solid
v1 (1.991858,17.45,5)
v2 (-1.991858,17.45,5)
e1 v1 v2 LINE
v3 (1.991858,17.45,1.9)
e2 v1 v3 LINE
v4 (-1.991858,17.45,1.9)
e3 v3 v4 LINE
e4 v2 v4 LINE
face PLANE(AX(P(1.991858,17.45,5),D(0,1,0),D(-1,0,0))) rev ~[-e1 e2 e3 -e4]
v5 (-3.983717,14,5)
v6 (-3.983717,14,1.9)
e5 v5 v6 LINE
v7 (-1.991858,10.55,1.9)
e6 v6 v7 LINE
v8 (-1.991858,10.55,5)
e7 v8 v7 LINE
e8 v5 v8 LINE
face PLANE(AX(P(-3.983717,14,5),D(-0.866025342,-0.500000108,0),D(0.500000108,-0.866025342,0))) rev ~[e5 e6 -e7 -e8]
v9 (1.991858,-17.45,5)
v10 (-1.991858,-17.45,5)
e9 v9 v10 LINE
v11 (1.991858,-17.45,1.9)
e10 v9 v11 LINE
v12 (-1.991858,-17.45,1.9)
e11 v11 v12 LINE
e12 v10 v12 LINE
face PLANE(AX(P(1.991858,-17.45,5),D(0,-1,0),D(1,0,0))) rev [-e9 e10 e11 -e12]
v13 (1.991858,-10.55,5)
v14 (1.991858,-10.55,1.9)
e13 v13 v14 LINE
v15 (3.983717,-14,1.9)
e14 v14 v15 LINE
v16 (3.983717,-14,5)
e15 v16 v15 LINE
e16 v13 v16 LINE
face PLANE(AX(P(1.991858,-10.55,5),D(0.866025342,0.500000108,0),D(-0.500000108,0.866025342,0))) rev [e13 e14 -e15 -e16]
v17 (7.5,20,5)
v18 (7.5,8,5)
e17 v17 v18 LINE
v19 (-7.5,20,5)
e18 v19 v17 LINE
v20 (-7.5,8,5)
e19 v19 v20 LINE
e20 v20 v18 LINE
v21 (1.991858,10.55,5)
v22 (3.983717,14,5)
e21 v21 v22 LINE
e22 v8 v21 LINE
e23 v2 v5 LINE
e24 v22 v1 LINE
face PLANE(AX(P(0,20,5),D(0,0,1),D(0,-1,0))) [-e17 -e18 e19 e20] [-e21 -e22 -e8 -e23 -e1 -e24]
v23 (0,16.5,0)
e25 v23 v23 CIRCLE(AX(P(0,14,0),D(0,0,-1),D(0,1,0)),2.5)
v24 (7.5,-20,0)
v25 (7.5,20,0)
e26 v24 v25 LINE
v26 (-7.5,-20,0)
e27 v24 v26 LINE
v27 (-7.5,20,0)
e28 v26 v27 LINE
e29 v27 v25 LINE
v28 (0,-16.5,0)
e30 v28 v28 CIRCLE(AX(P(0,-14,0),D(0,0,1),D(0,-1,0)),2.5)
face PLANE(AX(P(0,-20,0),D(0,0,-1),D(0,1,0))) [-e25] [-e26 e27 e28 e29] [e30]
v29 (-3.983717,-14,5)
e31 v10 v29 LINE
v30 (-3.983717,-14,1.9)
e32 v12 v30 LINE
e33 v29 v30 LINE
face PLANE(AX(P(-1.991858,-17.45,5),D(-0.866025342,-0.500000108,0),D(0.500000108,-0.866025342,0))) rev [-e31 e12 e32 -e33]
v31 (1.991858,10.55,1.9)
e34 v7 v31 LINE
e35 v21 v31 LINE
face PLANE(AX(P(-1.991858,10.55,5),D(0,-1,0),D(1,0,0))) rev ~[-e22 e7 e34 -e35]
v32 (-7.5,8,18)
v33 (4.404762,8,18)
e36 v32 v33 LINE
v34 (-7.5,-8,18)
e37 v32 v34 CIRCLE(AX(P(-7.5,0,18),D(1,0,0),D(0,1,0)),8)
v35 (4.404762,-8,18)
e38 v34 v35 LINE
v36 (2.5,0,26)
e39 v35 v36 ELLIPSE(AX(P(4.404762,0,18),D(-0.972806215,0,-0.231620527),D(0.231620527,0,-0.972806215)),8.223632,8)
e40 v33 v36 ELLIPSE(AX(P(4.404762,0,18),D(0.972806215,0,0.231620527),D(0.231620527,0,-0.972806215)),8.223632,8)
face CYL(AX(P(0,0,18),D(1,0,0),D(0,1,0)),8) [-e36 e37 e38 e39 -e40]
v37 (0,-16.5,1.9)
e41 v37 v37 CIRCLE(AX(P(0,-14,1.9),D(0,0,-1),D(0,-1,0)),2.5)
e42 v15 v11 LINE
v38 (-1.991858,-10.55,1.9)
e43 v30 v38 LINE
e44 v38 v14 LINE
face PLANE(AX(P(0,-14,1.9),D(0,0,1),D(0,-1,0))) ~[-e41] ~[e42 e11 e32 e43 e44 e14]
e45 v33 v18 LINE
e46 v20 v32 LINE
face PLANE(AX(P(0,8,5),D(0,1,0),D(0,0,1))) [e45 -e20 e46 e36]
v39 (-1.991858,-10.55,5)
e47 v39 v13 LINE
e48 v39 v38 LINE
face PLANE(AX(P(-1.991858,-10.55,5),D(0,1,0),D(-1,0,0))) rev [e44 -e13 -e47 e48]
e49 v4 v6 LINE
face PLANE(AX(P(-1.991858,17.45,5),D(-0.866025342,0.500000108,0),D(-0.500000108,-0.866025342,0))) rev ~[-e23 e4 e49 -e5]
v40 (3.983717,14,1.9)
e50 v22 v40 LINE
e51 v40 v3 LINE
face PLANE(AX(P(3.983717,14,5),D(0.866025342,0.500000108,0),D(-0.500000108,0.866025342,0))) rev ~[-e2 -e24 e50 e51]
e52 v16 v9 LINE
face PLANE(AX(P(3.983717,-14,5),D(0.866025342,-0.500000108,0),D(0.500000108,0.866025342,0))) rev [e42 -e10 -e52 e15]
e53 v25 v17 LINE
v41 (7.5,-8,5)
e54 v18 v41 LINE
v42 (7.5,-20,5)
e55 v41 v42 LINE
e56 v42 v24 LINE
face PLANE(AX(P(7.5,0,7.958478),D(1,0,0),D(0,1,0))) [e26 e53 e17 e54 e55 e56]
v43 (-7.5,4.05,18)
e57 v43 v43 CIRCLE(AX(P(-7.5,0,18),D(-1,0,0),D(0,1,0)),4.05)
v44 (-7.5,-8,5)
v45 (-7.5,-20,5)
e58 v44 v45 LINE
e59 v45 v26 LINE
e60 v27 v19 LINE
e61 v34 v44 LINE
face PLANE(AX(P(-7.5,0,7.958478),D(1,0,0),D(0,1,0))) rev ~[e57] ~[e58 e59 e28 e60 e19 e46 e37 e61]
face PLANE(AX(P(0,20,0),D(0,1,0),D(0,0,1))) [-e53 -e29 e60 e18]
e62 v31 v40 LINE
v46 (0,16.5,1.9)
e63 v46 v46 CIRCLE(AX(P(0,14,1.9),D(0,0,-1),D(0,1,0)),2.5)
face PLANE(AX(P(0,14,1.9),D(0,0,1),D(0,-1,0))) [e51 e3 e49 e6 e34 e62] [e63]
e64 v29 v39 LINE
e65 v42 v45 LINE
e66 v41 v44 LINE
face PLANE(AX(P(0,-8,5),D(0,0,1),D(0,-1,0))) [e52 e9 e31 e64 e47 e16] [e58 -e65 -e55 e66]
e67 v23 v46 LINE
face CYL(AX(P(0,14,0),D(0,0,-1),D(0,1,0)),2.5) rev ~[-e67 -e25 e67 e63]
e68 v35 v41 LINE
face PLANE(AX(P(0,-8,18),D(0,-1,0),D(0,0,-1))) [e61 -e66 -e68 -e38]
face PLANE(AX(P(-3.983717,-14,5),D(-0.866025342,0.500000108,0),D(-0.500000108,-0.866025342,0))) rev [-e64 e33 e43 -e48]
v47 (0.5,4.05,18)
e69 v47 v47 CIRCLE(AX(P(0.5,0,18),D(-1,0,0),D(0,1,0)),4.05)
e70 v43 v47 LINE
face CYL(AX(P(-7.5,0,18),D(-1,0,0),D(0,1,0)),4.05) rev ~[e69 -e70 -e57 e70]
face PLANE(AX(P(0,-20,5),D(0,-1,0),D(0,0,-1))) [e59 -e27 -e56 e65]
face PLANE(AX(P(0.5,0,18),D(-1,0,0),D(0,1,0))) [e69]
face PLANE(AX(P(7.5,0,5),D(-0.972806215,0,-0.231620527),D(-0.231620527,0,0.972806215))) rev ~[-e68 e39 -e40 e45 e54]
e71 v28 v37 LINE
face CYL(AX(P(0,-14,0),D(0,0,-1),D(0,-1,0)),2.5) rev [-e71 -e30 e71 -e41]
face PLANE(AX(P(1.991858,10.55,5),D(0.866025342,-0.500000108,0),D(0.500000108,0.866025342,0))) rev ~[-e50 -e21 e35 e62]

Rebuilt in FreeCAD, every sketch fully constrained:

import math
import FreeCAD as App
import Part
import Sketcher

V = App.Vector
Q = App.Units.Quantity


def add_polygon(sketch, points):
    """Adds a closed chain of lines whose ends are joined by coincident constraints."""
    first, n = sketch.GeometryCount, len(points)
    for a, b in zip(points, points[1:] + points[:1]):
        sketch.addGeometry(Part.LineSegment(App.Vector(*a, 0), App.Vector(*b, 0)), False)
    for i in range(n):
        sketch.addConstraint(Sketcher.Constraint("Coincident", first + i, 2, first + (i + 1) % n, 1))

doc = App.newDocument("Part")
params = doc.addObject("Spreadsheet::Sheet", "Params")
for row, (alias, value) in enumerate([
    ("sketch1_radius", "8 mm"),
    ("sketch1_width", "40 mm"),
    ("sketch1_height", "5 mm"),
    ("sketch1_height2", "13 mm"),
    ("pad1_length", "15 mm"),
    ("pocket1_length", "3.1 mm"),
    ("sketch3_diameter", "5 mm"),
    ("sketch4_diameter", "8.1 mm"),
    ("pocket3_length", "8 mm"),
    ("sketch5_width", "5 mm"),
    ("sketch5_height", "21 mm"),
], start=1):
    params.set(f"A{row}", alias)
    params.set(f"B{row}", "=" + value)
    params.setAlias(f"B{row}", alias)

body = doc.addObject("PartDesign::Body", "Body")

sketch1 = body.newObject("Sketcher::SketchObject", "Sketch")
sketch1.AttachmentSupport = (doc.getObject("YZ_Plane"), [""])
sketch1.MapMode = "FlatFace"
sketch1.addGeometry([
    Part.LineSegment(V(-20, 0, 0), V(20, 0, 0)),
    Part.LineSegment(V(20, 0, 0), V(20, 5, 0)),
    Part.LineSegment(V(20, 5, 0), V(8, 5, 0)),
    Part.LineSegment(V(8, 5, 0), V(8, 18, 0)),
    Part.ArcOfCircle(Part.Circle(V(0, 18, 0), V(0, 0, 1), 8), math.radians(0), math.radians(180)),
    Part.LineSegment(V(-8, 18, 0), V(-8, 5, 0)),
    Part.LineSegment(V(-8, 5, 0), V(-20, 5, 0)),
    Part.LineSegment(V(-20, 5, 0), V(-20, 0, 0)),
], False)
sketch1.addConstraint([
    Sketcher.Constraint("Coincident", 0, 2, 1, 1),
    Sketcher.Constraint("Coincident", 1, 2, 2, 1),
    Sketcher.Constraint("Coincident", 2, 2, 3, 1),
    Sketcher.Constraint("Tangent", 3, 2, 4, 1),
    Sketcher.Constraint("Tangent", 4, 2, 5, 1),
    Sketcher.Constraint("Coincident", 5, 2, 6, 1),
    Sketcher.Constraint("Coincident", 6, 2, 7, 1),
    Sketcher.Constraint("Coincident", 7, 2, 0, 1),
    Sketcher.Constraint("Horizontal", 0),
    Sketcher.Constraint("Vertical", 1),
    Sketcher.Constraint("Horizontal", 2),
    Sketcher.Constraint("Vertical", 3),
    Sketcher.Constraint("Vertical", 5),
    Sketcher.Constraint("Horizontal", 6),
    Sketcher.Constraint("Vertical", 7),
    Sketcher.Constraint("Symmetric", 0, 2, 7, 2, -1, 1),
    Sketcher.Constraint("Symmetric", 2, 2, 5, 2, -2),
    Sketcher.Constraint("Radius", 4, 8.0),
    Sketcher.Constraint("DistanceX", 0, 1, 0, 2, 40.0),
    Sketcher.Constraint("DistanceY", 1, 1, 1, 2, 5.0),
    Sketcher.Constraint("DistanceY", 3, 1, 3, 2, 13.0),
])
sketch1.setExpression("Constraints[17]", "Params.sketch1_radius")
sketch1.setExpression("Constraints[18]", "Params.sketch1_width")
sketch1.setExpression("Constraints[19]", "Params.sketch1_height")
sketch1.setExpression("Constraints[20]", "Params.sketch1_height2")
pad1 = body.newObject("PartDesign::Pad", "Pad")
pad1.Profile = sketch1
pad1.setExpression("Length", "Params.pad1_length")
pad1.Midplane = True

sketch2 = body.newObject("Sketcher::SketchObject", "Sketch001")
sketch2.AttachmentSupport = (doc.getObject("XY_Plane"), [""])
sketch2.MapMode = "FlatFace"
sketch2.AttachmentOffset = App.Placement(V(0, 0, 5), App.Rotation())
add_polygon(sketch2, [(1.991858, 10.55), (3.983717, 14), (1.991858, 17.45), (-1.991858, 17.45), (-3.983717, 14), (-1.991858, 10.55)])
sketch2.addConstraint([
    Sketcher.Constraint("Horizontal", 2),
    Sketcher.Constraint("Horizontal", 5),
    Sketcher.Constraint("Symmetric", 0, 2, 3, 2, -2),
    Sketcher.Constraint("Parallel", 0, 3),
    Sketcher.Constraint("Parallel", 1, 4),
    Sketcher.Constraint("Vertical", 2, 2, 4, 2),
    Sketcher.Constraint("Vertical", 1, 2, 5, 2),
    Sketcher.Constraint("Angle", 0, Q("59.999993 deg")),
    Sketcher.Constraint("DistanceY", -1, 1, 0, 2, 14.0),
    Sketcher.Constraint("DistanceY", 4, 2, 2, 2, 6.9),
    Sketcher.Constraint("DistanceX", 2, 2, 2, 1, 3.983716),
])
pocket1 = body.newObject("PartDesign::Pocket", "Pocket")
pocket1.Profile = sketch2
pocket1.setExpression("Length", "Params.pocket1_length")

sketch3 = body.newObject("Sketcher::SketchObject", "Sketch002")
sketch3.AttachmentSupport = (doc.getObject("XY_Plane"), [""])
sketch3.MapMode = "FlatFace"
sketch3.addGeometry(Part.Circle(V(0, 14, 0), V(0, 0, 1), 2.5), False)
sketch3.addConstraint([
    Sketcher.Constraint("PointOnObject", 0, 3, -2),
    Sketcher.Constraint("Diameter", 0, 5.0),
    Sketcher.Constraint("DistanceY", -1, 1, 0, 3, 14.0),
])
sketch3.setExpression("Constraints[1]", "Params.sketch3_diameter")
pocket2 = body.newObject("PartDesign::Pocket", "Pocket001")
pocket2.Profile = sketch3
pocket2.Type = "ThroughAll"
pocket2.Reversed = True
doc.recompute()

mirrored = body.newObject("PartDesign::Mirrored", "Mirrored")
mirrored.Originals = [pocket1, pocket2]
mirrored.MirrorPlane = (doc.getObject("XZ_Plane"), [""])
body.Tip = mirrored

sketch4 = body.newObject("Sketcher::SketchObject", "Sketch003")
sketch4.AttachmentSupport = (doc.getObject("YZ_Plane"), [""])
sketch4.MapMode = "FlatFace"
sketch4.AttachmentOffset = App.Placement(V(0, 0, -7.5), App.Rotation())
sketch4.addGeometry(Part.Circle(V(0, 18, 0), V(0, 0, 1), 4.05), False)
sketch4.addConstraint([
    Sketcher.Constraint("PointOnObject", 0, 3, -2),
    Sketcher.Constraint("Diameter", 0, 8.1),
    Sketcher.Constraint("DistanceY", -1, 1, 0, 3, 18.0),
])
sketch4.setExpression("Constraints[1]", "Params.sketch4_diameter")
pocket3 = body.newObject("PartDesign::Pocket", "Pocket002")
pocket3.Profile = sketch4
pocket3.setExpression("Length", "Params.pocket3_length")
pocket3.Reversed = True

sketch5 = body.newObject("Sketcher::SketchObject", "Sketch004")
sketch5.AttachmentSupport = (doc.getObject("XZ_Plane"), [""])
sketch5.MapMode = "FlatFace"
add_polygon(sketch5, [(2.5, 26), (7.5, 5), (7.5, 26)])
sketch5.addConstraint([
    Sketcher.Constraint("Vertical", 1),
    Sketcher.Constraint("Horizontal", 2),
    Sketcher.Constraint("DistanceX", 2, 2, 2, 1, 5.0),
    Sketcher.Constraint("DistanceY", 1, 1, 1, 2, 21.0),
    Sketcher.Constraint("DistanceY", -1, 1, 0, 2, 5.0),
    Sketcher.Constraint("DistanceX", -1, 1, 0, 2, 7.5),
])
sketch5.setExpression("Constraints[5]", "Params.sketch5_width")
sketch5.setExpression("Constraints[6]", "Params.sketch5_height")
pocket4 = body.newObject("PartDesign::Pocket", "Pocket003")
pocket4.Profile = sketch5
pocket4.Type = "ThroughAll"
pocket4.Midplane = True

doc.recompute()
